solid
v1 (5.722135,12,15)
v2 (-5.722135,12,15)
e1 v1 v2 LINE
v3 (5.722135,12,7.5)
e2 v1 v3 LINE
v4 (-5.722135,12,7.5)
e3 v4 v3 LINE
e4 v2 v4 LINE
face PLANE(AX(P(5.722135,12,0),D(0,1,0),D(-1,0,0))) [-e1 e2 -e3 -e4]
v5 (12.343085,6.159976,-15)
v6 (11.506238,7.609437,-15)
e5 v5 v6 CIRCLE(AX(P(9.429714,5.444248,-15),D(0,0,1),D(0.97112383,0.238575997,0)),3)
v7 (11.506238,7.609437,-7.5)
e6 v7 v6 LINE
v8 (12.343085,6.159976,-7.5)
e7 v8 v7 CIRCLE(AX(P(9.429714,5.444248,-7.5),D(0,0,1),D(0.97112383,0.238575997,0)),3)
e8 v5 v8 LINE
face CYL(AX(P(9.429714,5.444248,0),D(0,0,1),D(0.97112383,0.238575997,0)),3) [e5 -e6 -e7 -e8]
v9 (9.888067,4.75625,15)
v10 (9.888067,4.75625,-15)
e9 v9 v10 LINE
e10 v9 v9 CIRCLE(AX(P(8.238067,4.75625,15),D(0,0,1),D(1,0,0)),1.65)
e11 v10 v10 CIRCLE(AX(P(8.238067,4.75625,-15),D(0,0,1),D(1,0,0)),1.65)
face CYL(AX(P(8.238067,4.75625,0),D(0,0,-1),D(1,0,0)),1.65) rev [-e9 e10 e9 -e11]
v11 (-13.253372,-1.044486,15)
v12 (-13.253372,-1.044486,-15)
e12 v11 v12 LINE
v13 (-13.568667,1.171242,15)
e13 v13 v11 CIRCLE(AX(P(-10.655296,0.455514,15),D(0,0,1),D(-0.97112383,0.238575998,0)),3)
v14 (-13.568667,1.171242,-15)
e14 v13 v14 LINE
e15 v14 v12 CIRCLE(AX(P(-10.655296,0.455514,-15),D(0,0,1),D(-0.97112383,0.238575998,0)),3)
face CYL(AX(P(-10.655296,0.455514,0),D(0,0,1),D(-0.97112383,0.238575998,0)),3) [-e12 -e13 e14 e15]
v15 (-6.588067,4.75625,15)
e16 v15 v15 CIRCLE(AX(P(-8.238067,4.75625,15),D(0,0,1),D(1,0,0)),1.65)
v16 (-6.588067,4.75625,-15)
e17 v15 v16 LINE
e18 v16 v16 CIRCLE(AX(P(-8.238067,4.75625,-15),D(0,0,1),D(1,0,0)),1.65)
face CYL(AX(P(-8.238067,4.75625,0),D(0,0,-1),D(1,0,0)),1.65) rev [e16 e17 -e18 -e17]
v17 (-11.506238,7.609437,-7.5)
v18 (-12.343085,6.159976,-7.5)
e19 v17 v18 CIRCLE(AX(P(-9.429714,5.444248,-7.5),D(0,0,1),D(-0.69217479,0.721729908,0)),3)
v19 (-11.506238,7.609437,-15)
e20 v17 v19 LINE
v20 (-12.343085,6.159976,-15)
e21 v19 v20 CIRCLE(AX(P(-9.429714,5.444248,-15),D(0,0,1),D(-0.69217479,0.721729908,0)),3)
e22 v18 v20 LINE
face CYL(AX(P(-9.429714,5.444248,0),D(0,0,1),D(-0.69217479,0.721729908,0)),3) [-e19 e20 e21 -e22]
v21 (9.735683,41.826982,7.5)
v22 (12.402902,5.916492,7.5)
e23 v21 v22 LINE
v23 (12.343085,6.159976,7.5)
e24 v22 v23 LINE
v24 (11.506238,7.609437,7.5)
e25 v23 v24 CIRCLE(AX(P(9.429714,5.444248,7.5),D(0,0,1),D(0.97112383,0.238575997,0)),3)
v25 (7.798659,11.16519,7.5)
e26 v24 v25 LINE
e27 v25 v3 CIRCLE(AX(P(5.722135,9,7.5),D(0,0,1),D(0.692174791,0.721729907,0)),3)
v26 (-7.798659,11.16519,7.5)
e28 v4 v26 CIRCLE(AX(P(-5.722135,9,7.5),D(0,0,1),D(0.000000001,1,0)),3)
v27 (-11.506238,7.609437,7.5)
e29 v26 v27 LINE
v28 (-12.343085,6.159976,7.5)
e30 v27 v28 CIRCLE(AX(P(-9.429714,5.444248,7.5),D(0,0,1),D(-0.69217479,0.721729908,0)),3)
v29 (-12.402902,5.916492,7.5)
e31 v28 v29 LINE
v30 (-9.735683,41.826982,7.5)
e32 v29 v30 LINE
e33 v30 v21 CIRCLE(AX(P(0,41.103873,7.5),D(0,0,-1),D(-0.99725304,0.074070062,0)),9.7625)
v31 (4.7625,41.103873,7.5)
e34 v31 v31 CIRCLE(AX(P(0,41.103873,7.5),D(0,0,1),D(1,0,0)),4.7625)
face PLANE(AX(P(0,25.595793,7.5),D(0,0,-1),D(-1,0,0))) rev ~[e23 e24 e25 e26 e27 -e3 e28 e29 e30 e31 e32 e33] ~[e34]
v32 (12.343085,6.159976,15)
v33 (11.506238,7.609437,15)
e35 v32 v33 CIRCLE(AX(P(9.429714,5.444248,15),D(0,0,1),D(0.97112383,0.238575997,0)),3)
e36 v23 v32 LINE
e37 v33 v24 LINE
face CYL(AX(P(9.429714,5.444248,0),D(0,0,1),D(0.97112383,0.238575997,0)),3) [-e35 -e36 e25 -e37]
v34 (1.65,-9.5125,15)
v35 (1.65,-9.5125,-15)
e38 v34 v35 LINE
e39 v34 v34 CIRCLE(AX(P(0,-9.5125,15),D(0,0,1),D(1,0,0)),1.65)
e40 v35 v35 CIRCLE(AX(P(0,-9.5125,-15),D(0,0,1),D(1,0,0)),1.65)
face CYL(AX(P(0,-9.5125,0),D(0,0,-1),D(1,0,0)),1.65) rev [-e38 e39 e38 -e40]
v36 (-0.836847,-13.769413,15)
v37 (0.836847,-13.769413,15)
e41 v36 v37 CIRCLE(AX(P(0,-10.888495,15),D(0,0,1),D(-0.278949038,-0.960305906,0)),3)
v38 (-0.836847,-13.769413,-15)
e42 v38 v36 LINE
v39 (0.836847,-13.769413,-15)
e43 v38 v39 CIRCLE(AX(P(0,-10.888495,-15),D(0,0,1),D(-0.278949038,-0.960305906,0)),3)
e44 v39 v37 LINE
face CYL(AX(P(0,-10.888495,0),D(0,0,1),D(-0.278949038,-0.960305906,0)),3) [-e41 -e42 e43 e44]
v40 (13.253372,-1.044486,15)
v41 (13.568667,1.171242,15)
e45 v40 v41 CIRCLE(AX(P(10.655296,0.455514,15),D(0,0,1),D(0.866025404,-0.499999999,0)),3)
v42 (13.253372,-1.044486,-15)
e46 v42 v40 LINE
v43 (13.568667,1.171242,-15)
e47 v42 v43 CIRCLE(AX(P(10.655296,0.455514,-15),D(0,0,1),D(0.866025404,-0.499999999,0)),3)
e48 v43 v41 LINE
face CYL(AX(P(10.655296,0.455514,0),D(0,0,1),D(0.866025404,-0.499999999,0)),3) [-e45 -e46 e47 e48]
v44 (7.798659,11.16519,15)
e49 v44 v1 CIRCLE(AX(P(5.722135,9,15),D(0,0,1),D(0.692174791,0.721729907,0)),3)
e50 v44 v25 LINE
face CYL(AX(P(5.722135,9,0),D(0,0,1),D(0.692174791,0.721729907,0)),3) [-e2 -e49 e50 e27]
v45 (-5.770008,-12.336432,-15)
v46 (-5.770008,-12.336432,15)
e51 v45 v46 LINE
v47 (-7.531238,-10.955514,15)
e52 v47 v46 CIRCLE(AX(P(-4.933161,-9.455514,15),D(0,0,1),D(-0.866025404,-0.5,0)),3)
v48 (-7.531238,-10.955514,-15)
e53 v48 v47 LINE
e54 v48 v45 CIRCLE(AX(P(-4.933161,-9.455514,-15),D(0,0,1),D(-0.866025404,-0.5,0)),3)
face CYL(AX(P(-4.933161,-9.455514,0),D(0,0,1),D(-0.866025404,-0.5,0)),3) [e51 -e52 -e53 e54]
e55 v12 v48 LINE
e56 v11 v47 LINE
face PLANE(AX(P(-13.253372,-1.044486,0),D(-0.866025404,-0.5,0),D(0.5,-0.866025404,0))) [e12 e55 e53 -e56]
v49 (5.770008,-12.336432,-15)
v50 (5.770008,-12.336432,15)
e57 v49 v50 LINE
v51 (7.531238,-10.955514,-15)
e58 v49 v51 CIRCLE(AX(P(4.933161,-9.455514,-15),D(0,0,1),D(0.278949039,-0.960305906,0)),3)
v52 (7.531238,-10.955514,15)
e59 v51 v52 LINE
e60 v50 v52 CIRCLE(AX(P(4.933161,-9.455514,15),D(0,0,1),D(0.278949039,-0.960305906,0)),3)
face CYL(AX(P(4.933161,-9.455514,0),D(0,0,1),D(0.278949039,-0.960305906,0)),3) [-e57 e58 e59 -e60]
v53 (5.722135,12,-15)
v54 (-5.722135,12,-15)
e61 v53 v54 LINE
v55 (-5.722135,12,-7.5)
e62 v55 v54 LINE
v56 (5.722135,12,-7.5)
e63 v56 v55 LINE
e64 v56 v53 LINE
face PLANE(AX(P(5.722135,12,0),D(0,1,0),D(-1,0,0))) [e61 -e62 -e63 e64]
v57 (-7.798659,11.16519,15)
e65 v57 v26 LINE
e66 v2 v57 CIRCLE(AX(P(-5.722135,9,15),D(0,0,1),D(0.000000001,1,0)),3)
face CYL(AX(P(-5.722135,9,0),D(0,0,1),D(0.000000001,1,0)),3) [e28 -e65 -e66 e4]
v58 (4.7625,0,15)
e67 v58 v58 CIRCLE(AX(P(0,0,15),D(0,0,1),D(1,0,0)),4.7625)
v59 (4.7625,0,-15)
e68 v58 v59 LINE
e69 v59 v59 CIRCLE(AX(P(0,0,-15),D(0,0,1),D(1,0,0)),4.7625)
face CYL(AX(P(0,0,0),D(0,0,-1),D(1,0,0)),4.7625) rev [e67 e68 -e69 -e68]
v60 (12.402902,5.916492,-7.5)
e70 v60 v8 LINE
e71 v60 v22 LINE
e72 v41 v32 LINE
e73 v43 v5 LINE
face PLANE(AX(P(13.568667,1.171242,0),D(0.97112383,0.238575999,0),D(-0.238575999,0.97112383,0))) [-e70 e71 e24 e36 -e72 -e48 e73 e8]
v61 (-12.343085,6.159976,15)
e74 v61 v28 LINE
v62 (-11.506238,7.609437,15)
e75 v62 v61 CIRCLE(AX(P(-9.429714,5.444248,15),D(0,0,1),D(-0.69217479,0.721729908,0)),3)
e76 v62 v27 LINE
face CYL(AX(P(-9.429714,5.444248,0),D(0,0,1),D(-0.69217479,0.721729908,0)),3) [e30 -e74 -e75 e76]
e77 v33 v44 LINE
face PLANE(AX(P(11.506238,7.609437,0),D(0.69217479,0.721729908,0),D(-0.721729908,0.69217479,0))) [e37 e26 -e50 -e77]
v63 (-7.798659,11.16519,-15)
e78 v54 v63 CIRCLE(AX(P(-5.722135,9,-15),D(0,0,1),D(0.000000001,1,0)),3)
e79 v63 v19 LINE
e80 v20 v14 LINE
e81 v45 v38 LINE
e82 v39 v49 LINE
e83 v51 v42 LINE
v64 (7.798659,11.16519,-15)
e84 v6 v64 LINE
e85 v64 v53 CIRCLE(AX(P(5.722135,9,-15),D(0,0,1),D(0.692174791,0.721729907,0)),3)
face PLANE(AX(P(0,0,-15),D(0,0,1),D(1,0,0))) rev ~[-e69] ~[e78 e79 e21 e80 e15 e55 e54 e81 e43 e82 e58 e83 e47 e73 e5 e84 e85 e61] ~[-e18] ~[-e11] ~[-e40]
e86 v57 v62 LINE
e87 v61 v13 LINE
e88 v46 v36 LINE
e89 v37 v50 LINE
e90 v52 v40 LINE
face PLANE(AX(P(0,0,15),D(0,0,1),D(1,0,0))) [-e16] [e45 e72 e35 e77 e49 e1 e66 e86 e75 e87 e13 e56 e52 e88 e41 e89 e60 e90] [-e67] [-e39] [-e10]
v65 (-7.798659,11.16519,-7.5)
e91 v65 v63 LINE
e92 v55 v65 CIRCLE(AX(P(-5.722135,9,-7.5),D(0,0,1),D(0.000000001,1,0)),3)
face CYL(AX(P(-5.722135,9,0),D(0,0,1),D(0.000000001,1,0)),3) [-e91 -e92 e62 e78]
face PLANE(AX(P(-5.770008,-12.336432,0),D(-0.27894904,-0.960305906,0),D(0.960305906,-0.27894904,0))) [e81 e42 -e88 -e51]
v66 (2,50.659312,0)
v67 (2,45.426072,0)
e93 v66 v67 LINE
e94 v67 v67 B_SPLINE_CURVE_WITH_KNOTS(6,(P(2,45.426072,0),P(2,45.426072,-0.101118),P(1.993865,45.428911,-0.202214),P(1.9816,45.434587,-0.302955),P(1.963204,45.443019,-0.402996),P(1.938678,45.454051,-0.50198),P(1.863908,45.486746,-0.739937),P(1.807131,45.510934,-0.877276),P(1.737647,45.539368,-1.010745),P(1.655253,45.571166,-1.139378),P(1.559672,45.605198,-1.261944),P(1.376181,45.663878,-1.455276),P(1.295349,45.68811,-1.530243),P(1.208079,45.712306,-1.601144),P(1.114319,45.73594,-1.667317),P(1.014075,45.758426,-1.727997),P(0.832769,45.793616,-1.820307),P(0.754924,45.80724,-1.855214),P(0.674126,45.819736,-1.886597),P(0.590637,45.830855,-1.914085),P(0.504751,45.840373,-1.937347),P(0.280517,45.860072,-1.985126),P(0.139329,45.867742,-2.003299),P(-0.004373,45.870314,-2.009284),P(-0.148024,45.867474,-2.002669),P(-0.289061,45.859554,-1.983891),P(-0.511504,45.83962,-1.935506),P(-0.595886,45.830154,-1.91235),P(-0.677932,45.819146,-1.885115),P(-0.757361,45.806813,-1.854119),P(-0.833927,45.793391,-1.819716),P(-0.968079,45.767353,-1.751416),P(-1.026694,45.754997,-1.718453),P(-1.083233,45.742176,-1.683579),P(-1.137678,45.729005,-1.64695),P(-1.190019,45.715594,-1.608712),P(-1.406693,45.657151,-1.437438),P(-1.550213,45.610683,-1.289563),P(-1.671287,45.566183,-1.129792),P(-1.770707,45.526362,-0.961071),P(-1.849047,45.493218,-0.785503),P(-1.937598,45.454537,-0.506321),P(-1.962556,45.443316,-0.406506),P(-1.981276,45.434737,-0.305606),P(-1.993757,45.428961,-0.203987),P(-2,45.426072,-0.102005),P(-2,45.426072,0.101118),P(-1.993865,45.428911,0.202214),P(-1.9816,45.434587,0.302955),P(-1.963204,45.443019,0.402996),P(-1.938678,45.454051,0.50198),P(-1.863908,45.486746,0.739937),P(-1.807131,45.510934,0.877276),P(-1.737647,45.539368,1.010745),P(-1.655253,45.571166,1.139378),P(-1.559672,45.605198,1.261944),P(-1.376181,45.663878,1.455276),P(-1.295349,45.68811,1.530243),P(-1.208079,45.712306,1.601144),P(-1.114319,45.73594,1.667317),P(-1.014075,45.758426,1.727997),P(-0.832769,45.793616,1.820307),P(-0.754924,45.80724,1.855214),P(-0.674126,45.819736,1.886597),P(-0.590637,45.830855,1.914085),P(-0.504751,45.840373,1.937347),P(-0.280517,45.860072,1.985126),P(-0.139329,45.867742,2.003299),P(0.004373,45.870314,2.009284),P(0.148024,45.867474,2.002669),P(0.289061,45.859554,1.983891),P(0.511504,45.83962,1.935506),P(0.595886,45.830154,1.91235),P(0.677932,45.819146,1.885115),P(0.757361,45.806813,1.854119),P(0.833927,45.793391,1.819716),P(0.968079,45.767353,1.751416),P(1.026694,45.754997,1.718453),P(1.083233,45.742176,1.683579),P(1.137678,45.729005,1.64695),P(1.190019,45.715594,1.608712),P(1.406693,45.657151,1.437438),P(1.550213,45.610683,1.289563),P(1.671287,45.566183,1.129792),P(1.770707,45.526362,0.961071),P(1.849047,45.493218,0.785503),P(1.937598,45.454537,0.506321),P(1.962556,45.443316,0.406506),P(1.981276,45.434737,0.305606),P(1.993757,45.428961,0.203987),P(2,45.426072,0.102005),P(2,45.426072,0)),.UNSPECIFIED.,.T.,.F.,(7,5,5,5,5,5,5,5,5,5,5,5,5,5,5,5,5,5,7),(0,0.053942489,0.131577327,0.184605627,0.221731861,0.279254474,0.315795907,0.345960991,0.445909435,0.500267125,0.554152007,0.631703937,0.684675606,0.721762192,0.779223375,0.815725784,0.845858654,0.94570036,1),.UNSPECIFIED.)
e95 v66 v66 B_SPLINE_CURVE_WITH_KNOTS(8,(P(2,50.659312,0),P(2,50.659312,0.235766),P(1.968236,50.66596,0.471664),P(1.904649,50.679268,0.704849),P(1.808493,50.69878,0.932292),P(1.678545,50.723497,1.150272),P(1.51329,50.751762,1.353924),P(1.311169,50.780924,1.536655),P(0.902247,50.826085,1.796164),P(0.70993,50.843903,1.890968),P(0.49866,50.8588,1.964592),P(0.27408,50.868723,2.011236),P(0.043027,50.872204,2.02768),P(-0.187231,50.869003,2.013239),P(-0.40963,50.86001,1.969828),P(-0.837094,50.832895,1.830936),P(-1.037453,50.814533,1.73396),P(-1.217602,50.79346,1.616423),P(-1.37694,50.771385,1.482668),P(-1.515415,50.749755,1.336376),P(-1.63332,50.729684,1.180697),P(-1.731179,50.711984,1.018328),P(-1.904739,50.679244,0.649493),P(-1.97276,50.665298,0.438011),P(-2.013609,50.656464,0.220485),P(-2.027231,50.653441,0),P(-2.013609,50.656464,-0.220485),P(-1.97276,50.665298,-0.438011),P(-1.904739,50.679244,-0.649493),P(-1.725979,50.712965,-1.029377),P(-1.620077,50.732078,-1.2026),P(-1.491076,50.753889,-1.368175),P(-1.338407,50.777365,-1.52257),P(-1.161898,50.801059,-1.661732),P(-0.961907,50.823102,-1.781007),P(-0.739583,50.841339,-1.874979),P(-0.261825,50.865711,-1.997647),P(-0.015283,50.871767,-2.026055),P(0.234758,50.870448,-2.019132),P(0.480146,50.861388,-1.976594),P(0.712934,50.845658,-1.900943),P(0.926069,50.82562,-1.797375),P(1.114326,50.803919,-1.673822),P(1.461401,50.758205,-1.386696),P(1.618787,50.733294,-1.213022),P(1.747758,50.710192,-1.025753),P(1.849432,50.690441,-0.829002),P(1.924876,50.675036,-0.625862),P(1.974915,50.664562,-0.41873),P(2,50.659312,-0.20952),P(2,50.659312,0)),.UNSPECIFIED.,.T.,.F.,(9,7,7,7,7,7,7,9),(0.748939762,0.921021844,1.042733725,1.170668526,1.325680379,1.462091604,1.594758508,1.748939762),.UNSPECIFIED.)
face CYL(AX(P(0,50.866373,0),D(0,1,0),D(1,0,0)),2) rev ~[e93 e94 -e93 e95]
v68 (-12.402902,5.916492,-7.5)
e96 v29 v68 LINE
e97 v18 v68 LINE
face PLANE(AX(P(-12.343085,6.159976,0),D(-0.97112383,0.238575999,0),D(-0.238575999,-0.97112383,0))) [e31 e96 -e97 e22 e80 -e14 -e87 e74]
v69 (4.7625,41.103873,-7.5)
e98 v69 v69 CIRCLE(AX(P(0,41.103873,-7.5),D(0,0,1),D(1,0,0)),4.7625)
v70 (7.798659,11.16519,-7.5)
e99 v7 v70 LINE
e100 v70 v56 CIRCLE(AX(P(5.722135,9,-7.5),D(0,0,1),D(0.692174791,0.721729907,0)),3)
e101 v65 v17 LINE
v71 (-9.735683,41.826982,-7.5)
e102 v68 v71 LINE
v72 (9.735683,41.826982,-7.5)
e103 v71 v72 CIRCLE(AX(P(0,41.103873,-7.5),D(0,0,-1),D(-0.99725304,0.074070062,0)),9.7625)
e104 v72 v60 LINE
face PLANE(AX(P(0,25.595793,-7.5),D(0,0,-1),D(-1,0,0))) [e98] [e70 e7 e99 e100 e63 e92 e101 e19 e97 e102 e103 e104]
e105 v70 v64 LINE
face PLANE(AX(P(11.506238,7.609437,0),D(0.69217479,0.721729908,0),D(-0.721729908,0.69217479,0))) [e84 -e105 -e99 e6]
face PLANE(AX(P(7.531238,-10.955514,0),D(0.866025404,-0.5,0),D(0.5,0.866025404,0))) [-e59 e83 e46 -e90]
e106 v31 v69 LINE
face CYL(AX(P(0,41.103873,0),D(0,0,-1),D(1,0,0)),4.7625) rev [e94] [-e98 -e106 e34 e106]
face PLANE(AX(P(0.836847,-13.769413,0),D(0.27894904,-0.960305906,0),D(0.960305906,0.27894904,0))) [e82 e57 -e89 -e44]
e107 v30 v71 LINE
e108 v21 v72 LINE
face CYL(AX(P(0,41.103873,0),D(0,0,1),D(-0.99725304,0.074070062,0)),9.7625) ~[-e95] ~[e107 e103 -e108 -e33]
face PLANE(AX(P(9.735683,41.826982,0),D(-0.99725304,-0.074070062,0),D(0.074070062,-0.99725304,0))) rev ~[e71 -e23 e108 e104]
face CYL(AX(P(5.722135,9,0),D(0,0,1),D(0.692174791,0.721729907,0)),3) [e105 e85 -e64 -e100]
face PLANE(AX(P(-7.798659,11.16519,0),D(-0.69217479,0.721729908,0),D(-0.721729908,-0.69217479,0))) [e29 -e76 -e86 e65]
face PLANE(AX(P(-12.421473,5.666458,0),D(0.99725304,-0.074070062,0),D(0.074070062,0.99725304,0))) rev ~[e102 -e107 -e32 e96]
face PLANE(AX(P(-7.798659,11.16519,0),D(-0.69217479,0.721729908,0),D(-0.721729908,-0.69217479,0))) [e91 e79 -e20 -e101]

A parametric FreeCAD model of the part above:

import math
import FreeCAD as App
import Part
import Sketcher
from FreeCAD import Vector
Q = App.Units.Quantity

doc = App.newDocument("Part")
params = doc.addObject("Spreadsheet::Sheet", "Params")
for row, (alias, value) in enumerate([
    ("sketch1_radius", "3 mm"),
    ("sketch1_diameter", "3.3 mm"),
    ("pad1_length", "30 mm"),
    ("pad2_length", "15 mm"),
    ("sketch3_diameter", "4 mm"),
], start=1):
    params.set(f"A{row}", alias)
    params.set(f"B{row}", "=" + value)
    params.setAlias(f"B{row}", alias)

body = doc.addObject("PartDesign::Body", "Body")

# Sketch on XY plane
sketch1 = body.newObject("Sketcher::SketchObject", "Sketch")
sketch1.AttachmentSupport = (doc.getObject("XY_Plane"), [""])
sketch1.MapMode = "FlatFace"
sketch1.addGeometry([
    Part.LineSegment(Vector(-13.3, -1, 0), Vector(-7.5, -11, 0)),  # 0
    Part.ArcOfCircle(Part.Circle(Vector(-4.9, -9.5, 0), Vector(0, 0, 1), 3), math.radians(-150), math.radians(-106)),  # 1
    Part.LineSegment(Vector(-5.8, -12.3, 0), Vector(-0.8, -13.8, 0)),  # 2
    Part.ArcOfCircle(Part.Circle(Vector(0, -10.9, 0), Vector(0, 0, 1), 3), math.radians(-106), math.radians(-74)),  # 3
    Part.LineSegment(Vector(0.8, -13.8, 0), Vector(5.8, -12.3, 0)),  # 4
    Part.ArcOfCircle(Part.Circle(Vector(4.9, -9.5, 0), Vector(0, 0, 1), 3), math.radians(-74), math.radians(-30)),  # 5
    Part.LineSegment(Vector(7.5, -11, 0), Vector(13.3, -1, 0)),  # 6
    Part.ArcOfCircle(Part.Circle(Vector(10.7, 0.5, 0), Vector(0, 0, 1), 3), math.radians(-30), math.radians(14)),  # 7
    Part.LineSegment(Vector(13.6, 1.2, 0), Vector(12.3, 6.2, 0)),  # 8
    Part.ArcOfCircle(Part.Circle(Vector(9.4, 5.4, 0), Vector(0, 0, 1), 3), math.radians(14), math.radians(46)),  # 9
    Part.LineSegment(Vector(11.5, 7.6, 0), Vector(7.8, 11.2, 0)),  # 10
    Part.ArcOfCircle(Part.Circle(Vector(5.7, 9, 0), Vector(0, 0, 1), 3), math.radians(46), math.radians(90)),  # 11
    Part.LineSegment(Vector(5.7, 12, 0), Vector(-5.7, 12, 0)),  # 12
    Part.ArcOfCircle(Part.Circle(Vector(-5.7, 9, 0), Vector(0, 0, 1), 3), math.radians(90), math.radians(134)),  # 13
    Part.LineSegment(Vector(-7.8, 11.2, 0), Vector(-11.5, 7.6, 0)),  # 14
    Part.ArcOfCircle(Part.Circle(Vector(-9.4, 5.4, 0), Vector(0, 0, 1), 3), math.radians(134), math.radians(166)),  # 15
    Part.LineSegment(Vector(-12.3, 6.2, 0), Vector(-13.6, 1.2, 0)),  # 16
    Part.ArcOfCircle(Part.Circle(Vector(-10.7, 0.5, 0), Vector(0, 0, 1), 3), math.radians(166), math.radians(210)),  # 17
    Part.Circle(Vector(0, -9.5, 0), Vector(0, 0, 1), 1.6),  # 18
    Part.Circle(Vector(-8.2, 4.8, 0), Vector(0, 0, 1), 1.6),  # 19
    Part.Circle(Vector(0, 0, 0), Vector(0, 0, 1), 4.8),  # 20
    Part.Circle(Vector(8.2, 4.8, 0), Vector(0, 0, 1), 1.6),  # 21
], False)
sketch1.addConstraint([
    Sketcher.Constraint("Tangent", 0, 2, 1, 1),
    Sketcher.Constraint("Tangent", 1, 2, 2, 1),
    Sketcher.Constraint("Tangent", 2, 2, 3, 1),
    Sketcher.Constraint("Tangent", 3, 2, 4, 1),
    Sketcher.Constraint("Tangent", 4, 2, 5, 1),
    Sketcher.Constraint("Tangent", 5, 2, 6, 1),
    Sketcher.Constraint("Tangent", 6, 2, 7, 1),
    Sketcher.Constraint("Tangent", 7, 2, 8, 1),
    Sketcher.Constraint("Tangent", 8, 2, 9, 1),
    Sketcher.Constraint("Tangent", 9, 2, 10, 1),
    Sketcher.Constraint("Tangent", 10, 2, 11, 1),
    Sketcher.Constraint("Tangent", 11, 2, 12, 1),
    Sketcher.Constraint("Tangent", 12, 2, 13, 1),
    Sketcher.Constraint("Tangent", 13, 2, 14, 1),
    Sketcher.Constraint("Tangent", 14, 2, 15, 1),
    Sketcher.Constraint("Tangent", 15, 2, 16, 1),
    Sketcher.Constraint("Tangent", 16, 2, 17, 1),
    Sketcher.Constraint("Tangent", 17, 2, 0, 1),
    Sketcher.Constraint("Horizontal", 12),
    Sketcher.Constraint("Coincident", 20, 3, -1, 1),
    Sketcher.Constraint("Equal", 1, 3),
    Sketcher.Constraint("Equal", 3, 5),
    Sketcher.Constraint("Equal", 5, 7),
    Sketcher.Constraint("Equal", 7, 9),
    Sketcher.Constraint("Equal", 9, 11),
    Sketcher.Constraint("Equal", 11, 13),
    Sketcher.Constraint("Equal", 13, 15),
    Sketcher.Constraint("Equal", 15, 17),
    Sketcher.Constraint("Equal", 18, 19),
    Sketcher.Constraint("Equal", 19, 21),
    Sketcher.Constraint("Symmetric", 1, 3, 5, 3, -2),
    Sketcher.Constraint("Symmetric", 9, 3, 15, 3, -2),
    Sketcher.Constraint("Symmetric", 7, 3, 17, 3, -2),
    Sketcher.Constraint("Symmetric", 19, 3, 21, 3, -2),
    Sketcher.Constraint("PointOnObject", 3, 3, -2),
    Sketcher.Constraint("PointOnObject", 18, 3, -2),
    Sketcher.Constraint("Horizontal", 10, 2, 13, 2),
    Sketcher.Constraint("Equal", 4, 8),
    Sketcher.Constraint("Equal", 8, 10),
    Sketcher.Constraint("Radius", 1, 3.0),
    Sketcher.Constraint("Diameter", 18, 3.3),
    Sketcher.Constraint("Angle", 0, Q("-60 deg")),
    Sketcher.Constraint("Diameter", 20, 9.525),
    Sketcher.Constraint("DistanceY", -1, 1, 11, 3, 9.0),
    Sketcher.Constraint("DistanceX", 12, 2, 12, 1, 11.444269),
    Sketcher.Constraint("DistanceY", 18, 3, -1, 1, 9.5125),
    Sketcher.Constraint("DistanceX", 19, 3, 11, 3, 13.960201),
    Sketcher.Constraint("DistanceX", 0, 2, 5, 3, 12.464399),
    Sketcher.Constraint("DistanceY", 2, 2, 1, 3, 4.313899),
    Sketcher.Constraint("DistanceX", 21, 3, 7, 2, 5.330601),
    Sketcher.Constraint("Distance", 0, 11.444269),
    Sketcher.Constraint("DistanceY", -1, 1, 19, 3, 4.75625),
])
sketch1.setExpression("Constraints[39]", "Params.sketch1_radius")
sketch1.setExpression("Constraints[40]", "Params.sketch1_diameter")
pad1 = body.newObject("PartDesign::Pad", "Pad")
pad1.Profile = sketch1
pad1.setExpression("Length", "Params.pad1_length")
pad1.Midplane = True

# Sketch on XY plane
sketch2 = body.newObject("Sketcher::SketchObject", "Sketch001")
sketch2.AttachmentSupport = (doc.getObject("XY_Plane"), [""])
sketch2.MapMode = "FlatFace"
sketch2.addGeometry([
    Part.LineSegment(Vector(-9.7, 41.8, 0), Vector(-12.4, 5.7, 0)),  # 0
    Part.LineSegment(Vector(-12.4, 5.7, 0), Vector(0, 12, 0)),  # 1
    Part.LineSegment(Vector(0, 12, 0), Vector(12.4, 5.7, 0)),  # 2
    Part.LineSegment(Vector(12.4, 5.7, 0), Vector(9.7, 41.8, 0)),  # 3
    Part.ArcOfCircle(Part.Circle(Vector(0, 41.1, 0), Vector(0, 0, 1), 9.8), math.radians(4), math.radians(176)),  # 4
    Part.Circle(Vector(0, 41.1, 0), Vector(0, 0, 1), 4.8),  # 5
], False)
sketch2.addConstraint([
    Sketcher.Constraint("Coincident", 0, 2, 1, 1),
    Sketcher.Constraint("Coincident", 1, 2, 2, 1),
    Sketcher.Constraint("Coincident", 2, 2, 3, 1),
    Sketcher.Constraint("Tangent", 3, 2, 4, 1),
    Sketcher.Constraint("Tangent", 4, 2, 0, 1),
    Sketcher.Constraint("Coincident", 5, 3, 4, 3),
    Sketcher.Constraint("Symmetric", 0, 2, 2, 2, -2),
    Sketcher.Constraint("PointOnObject", 4, 3, -2),
    Sketcher.Constraint("PointOnObject", 1, 2, -2),
    Sketcher.Constraint("Diameter", 5, 9.525),
    Sketcher.Constraint("DistanceY", -1, 1, 1, 2, 12.0),
    Sketcher.Constraint("Radius", 4, 9.7625),
    Sketcher.Constraint("Distance", 0, 36.260129),
    Sketcher.Constraint("Distance", 1, 13.942982),
    Sketcher.Constraint("DistanceY", -1, 1, 3, 2, 41.826982),
])
pad2 = body.newObject("PartDesign::Pad", "Pad001")
pad2.Profile = sketch2
pad2.setExpression("Length", "Params.pad2_length")
pad2.Midplane = True

# Sketch on XZ plane
sketch3 = body.newObject("Sketcher::SketchObject", "Sketch002")
sketch3.AttachmentSupport = (doc.getObject("XZ_Plane"), [""])
sketch3.MapMode = "FlatFace"
sketch3.AttachmentOffset = App.Placement(Vector(0, 0, -50.866373), App.Rotation())
sketch3.addGeometry(Part.Circle(Vector(0, 0, 0), Vector(0, 0, 1), 2), False)
sketch3.addConstraint([
    Sketcher.Constraint("Coincident", 0, 3, -1, 1),
    Sketcher.Constraint("Diameter", 0, 4.0),
])
sketch3.setExpression("Constraints[1]", "Params.sketch3_diameter")
pocket1 = body.newObject("PartDesign::Pocket", "Pocket")
pocket1.Profile = sketch3
pocket1.Type = "UpToFirst"
pocket1.Reversed = True

doc.recompute()
